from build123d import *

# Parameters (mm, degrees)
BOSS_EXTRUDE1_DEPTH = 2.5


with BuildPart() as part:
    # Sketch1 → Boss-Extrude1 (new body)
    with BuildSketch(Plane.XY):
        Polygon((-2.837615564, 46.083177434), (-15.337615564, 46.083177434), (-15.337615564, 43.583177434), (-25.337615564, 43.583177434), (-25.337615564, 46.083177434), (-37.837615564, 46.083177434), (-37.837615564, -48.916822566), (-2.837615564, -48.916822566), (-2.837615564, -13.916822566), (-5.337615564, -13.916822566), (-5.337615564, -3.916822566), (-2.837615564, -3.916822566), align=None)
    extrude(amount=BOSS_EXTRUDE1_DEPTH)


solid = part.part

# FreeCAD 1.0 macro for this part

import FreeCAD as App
import Part
import Sketcher
from FreeCAD import Vector


def add_polygon(sketch, points):
    """Adds a closed chain of lines whose ends are joined by coincident constraints."""
    first, n = sketch.GeometryCount, len(points)
    for a, b in zip(points, points[1:] + points[:1]):
        sketch.addGeometry(Part.LineSegment(App.Vector(*a, 0), App.Vector(*b, 0)), False)
    for i in range(n):
        sketch.addConstraint(Sketcher.Constraint("Coincident", first + i, 2, first + (i + 1) % n, 1))

doc = App.newDocument("Part")
body = doc.addObject("PartDesign::Body", "Body")

# Sketch on XY plane
sketch1 = body.newObject("Sketcher::SketchObject", "Sketch")
sketch1.AttachmentSupport = (doc.getObject("XY_Plane"), [""])
sketch1.MapMode = "FlatFace"
add_polygon(sketch1, [(-2.837616, 46.083177), (-15.337616, 46.083177), (-15.337616, 43.583177), (-25.337616, 43.583177), (-25.337616, 46.083177), (-37.837616, 46.083177), (-37.837616, -48.916823), (-2.837616, -48.916823), (-2.837616, -13.916823), (-5.337616, -13.916823), (-5.337616, -3.916823), (-2.837616, -3.916823)])  # lines 0-11
sketch1.addConstraint(Sketcher.Constraint("Horizontal", 0))
sketch1.addConstraint(Sketcher.Constraint("Vertical", 1))
sketch1.addConstraint(Sketcher.Constraint("Horizontal", 2))
sketch1.addConstraint(Sketcher.Constraint("Vertical", 3))
sketch1.addConstraint(Sketcher.Constraint("Horizontal", 4))
sketch1.addConstraint(Sketcher.Constraint("Vertical", 5))
sketch1.addConstraint(Sketcher.Constraint("Horizontal", 6))
sketch1.addConstraint(Sketcher.Constraint("Vertical", 7))
sketch1.addConstraint(Sketcher.Constraint("Horizontal", 8))
sketch1.addConstraint(Sketcher.Constraint("Vertical", 9))
sketch1.addConstraint(Sketcher.Constraint("Horizontal", 10))
sketch1.addConstraint(Sketcher.Constraint("Vertical", 11))
sketch1.addConstraint(Sketcher.Constraint("Horizontal", 0, 2, 3, 2))
sketch1.addConstraint(Sketcher.Constraint("Vertical", 7, 2, 10, 2))
sketch1.addConstraint(Sketcher.Constraint("Equal", 0, 4))
sketch1.addConstraint(Sketcher.Constraint("Equal", 10, 1))
sketch1.addConstraint(Sketcher.Constraint("Equal", 6, 7))
sketch1.addConstraint(Sketcher.Constraint("Equal", 2, 9))
sketch1.addConstraint(Sketcher.Constraint("DistanceX", 2, 2, 2, 1, 10.0))
sketch1.addConstraint(Sketcher.Constraint("DistanceX", 6, 1, 6, 2, 35.0))
sketch1.addConstraint(Sketcher.Constraint("DistanceY", 5, 2, 5, 1, 95.0))
sketch1.addConstraint(Sketcher.Constraint("DistanceX", 8, 2, 8, 1, 2.5))
sketch1.addConstraint(Sketcher.Constraint("DistanceX", 0, 2, -1, 1, 15.337616))
sketch1.addConstraint(Sketcher.Constraint("DistanceY", -1, 1, 0, 2, 46.083177))
pad1 = body.newObject("PartDesign::Pad", "Pad")
pad1.Profile = sketch1
pad1.Length = 2.5

doc.recompute()
